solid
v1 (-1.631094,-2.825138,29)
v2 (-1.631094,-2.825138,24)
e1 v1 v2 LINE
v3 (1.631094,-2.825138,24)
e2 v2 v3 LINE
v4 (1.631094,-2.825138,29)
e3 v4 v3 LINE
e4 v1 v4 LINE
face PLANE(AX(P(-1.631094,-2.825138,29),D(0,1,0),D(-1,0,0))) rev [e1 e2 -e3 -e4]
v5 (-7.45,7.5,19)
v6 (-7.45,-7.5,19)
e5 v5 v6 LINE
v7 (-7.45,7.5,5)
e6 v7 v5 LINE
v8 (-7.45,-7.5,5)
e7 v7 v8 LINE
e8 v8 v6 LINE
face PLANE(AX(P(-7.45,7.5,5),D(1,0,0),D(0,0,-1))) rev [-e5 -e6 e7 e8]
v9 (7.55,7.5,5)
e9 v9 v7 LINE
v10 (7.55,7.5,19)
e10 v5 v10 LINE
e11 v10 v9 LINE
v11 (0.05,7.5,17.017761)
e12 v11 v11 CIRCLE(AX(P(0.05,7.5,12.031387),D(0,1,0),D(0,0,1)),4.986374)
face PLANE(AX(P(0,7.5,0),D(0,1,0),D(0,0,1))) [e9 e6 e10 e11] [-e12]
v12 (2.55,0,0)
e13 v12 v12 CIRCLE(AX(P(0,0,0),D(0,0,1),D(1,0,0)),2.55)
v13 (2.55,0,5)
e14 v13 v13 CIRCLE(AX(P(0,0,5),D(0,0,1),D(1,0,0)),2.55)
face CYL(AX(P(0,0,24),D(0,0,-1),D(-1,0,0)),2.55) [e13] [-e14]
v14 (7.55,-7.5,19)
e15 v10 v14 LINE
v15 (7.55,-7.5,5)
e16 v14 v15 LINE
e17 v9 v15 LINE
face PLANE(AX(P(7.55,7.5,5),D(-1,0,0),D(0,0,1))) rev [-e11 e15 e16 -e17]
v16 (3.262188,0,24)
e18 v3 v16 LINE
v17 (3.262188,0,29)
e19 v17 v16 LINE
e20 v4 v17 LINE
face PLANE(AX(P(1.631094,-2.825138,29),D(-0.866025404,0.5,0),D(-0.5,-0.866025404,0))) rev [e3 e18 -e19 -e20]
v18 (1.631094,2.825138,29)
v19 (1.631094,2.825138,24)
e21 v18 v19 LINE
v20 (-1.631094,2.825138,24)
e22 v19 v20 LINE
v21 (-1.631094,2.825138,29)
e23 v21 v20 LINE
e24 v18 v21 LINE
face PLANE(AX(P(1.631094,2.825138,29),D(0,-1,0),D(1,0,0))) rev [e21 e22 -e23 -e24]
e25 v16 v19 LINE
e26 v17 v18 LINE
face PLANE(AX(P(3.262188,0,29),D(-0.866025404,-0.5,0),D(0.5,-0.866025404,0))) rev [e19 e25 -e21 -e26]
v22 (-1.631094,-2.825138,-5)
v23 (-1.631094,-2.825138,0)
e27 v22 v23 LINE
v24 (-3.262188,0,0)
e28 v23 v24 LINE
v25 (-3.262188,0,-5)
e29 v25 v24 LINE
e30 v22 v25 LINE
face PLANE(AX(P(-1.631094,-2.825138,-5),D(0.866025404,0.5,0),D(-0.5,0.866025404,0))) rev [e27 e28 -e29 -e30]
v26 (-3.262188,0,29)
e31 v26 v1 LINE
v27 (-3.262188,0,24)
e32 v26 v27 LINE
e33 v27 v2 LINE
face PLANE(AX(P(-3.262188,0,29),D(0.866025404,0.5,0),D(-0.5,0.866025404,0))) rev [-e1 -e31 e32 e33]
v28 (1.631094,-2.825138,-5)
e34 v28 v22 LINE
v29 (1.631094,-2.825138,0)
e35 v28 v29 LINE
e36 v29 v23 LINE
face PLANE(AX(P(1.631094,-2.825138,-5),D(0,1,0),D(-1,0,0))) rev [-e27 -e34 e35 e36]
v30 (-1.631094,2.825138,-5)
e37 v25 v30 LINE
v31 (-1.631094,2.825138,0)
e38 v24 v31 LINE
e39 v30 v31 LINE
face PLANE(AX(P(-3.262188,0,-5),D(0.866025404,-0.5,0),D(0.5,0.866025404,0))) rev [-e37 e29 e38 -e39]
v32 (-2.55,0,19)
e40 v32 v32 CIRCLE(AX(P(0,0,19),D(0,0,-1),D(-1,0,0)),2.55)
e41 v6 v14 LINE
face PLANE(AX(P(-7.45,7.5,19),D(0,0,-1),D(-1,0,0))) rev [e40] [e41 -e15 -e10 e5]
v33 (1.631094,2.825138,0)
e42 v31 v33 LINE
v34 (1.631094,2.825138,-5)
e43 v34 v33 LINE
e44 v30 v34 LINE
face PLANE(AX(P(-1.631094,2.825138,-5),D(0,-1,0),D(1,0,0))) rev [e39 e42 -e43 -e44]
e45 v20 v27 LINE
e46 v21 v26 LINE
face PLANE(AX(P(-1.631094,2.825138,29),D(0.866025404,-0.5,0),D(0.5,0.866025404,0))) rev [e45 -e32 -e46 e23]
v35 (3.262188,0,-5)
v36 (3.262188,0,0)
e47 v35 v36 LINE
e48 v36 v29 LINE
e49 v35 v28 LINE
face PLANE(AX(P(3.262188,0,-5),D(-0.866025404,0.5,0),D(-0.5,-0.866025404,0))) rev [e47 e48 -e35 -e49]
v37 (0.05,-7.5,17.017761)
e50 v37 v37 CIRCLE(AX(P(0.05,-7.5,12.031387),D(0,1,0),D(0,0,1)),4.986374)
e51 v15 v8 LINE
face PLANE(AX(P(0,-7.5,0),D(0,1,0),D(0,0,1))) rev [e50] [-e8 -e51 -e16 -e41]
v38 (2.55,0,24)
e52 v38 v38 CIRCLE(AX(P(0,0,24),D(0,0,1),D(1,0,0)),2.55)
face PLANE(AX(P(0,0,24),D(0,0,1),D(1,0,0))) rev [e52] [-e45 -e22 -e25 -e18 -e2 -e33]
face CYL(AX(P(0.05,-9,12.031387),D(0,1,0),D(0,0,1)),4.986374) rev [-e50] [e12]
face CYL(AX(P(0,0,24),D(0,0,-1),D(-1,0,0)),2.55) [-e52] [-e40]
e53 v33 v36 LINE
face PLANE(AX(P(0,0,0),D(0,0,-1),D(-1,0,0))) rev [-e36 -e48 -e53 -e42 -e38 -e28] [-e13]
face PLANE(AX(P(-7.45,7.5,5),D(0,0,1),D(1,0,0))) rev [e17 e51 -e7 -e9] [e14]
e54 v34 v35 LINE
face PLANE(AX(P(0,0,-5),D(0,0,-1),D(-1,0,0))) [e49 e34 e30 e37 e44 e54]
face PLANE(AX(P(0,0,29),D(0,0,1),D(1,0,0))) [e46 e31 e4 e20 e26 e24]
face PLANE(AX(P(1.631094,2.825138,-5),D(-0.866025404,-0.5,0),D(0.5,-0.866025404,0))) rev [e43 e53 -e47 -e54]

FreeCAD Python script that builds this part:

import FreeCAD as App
import Part
import Sketcher
Q = App.Units.Quantity

doc = App.newDocument("Part")
body = doc.addObject("PartDesign::Body", "Body")

# Sketch on XY plane
sketch1 = body.newObject("Sketcher::SketchObject", "Sketch")
sketch1.AttachmentSupport = (doc.getObject("XY_Plane"), [""])
sketch1.MapMode = "FlatFace"
sketch1.addGeometry(Part.Circle(App.Vector(0, 0, 0), App.Vector(0, 0, 1), 2.55), False)
sketch1.addConstraint([
    Sketcher.Constraint("Coincident", 0, 3, -1, 1),
    Sketcher.Constraint("Diameter", 0, 5.1),
])
pad1 = body.newObject("PartDesign::Pad", "Pad")
pad1.Profile = sketch1
pad1.Length = 24

# Sketch on XY plane
sketch2 = body.newObject("Sketcher::SketchObject", "Sketch001")
sketch2.AttachmentSupport = (doc.getObject("XY_Plane"), [""])
sketch2.MapMode = "FlatFace"
sketch2.AttachmentOffset = App.Placement(App.Vector(0, 0, 24), App.Rotation())
sketch2.addGeometry([
    Part.LineSegment(App.Vector(3.262188, 0, 0), App.Vector(1.631094, 2.825138, 0)),  # 0
    Part.LineSegment(App.Vector(1.631094, 2.825138, 0), App.Vector(-1.631094, 2.825138, 0)),  # 1
    Part.LineSegment(App.Vector(-1.631094, 2.825138, 0), App.Vector(-3.262188, 0, 0)),  # 2
    Part.LineSegment(App.Vector(-3.262188, 0, 0), App.Vector(-1.631094, -2.825138, 0)),  # 3
    Part.LineSegment(App.Vector(-1.631094, -2.825138, 0), App.Vector(1.631094, -2.825138, 0)),  # 4
    Part.LineSegment(App.Vector(1.631094, -2.825138, 0), App.Vector(3.262188, 0, 0)),  # 5
], False)
sketch2.addConstraint([
    Sketcher.Constraint("Coincident", 0, 2, 1, 1),
    Sketcher.Constraint("Coincident", 1, 2, 2, 1),
    Sketcher.Constraint("Coincident", 2, 2, 3, 1),
    Sketcher.Constraint("Coincident", 3, 2, 4, 1),
    Sketcher.Constraint("Coincident", 4, 2, 5, 1),
    Sketcher.Constraint("Coincident", 5, 2, 0, 1),
    Sketcher.Constraint("Horizontal", 1),
    Sketcher.Constraint("Horizontal", 4),
    Sketcher.Constraint("Symmetric", 0, 2, 3, 2, -1, 1),
    Sketcher.Constraint("Symmetric", 2, 2, 5, 2, -1, 1),
    Sketcher.Constraint("PointOnObject", 2, 2, -1),
    Sketcher.Constraint("Parallel", 2, 5),
    Sketcher.Constraint("Vertical", 1, 2, 3, 2),
    Sketcher.Constraint("Angle", 0, Q("120 deg")),
    Sketcher.Constraint("DistanceX", 1, 2, 1, 1, 3.262188),
    Sketcher.Constraint("Distance", 0, 3.262188),
])
pad2 = body.newObject("PartDesign::Pad", "Pad001")
pad2.Profile = sketch2
pad2.Length = 5

# Sketch on XY plane
sketch3 = body.newObject("Sketcher::SketchObject", "Sketch002")
sketch3.AttachmentSupport = (doc.getObject("XY_Plane"), [""])
sketch3.MapMode = "FlatFace"
sketch3.addGeometry([
    Part.LineSegment(App.Vector(-3.262188, 0, 0), App.Vector(-1.631094, 2.825138, 0)),  # 0
    Part.LineSegment(App.Vector(-1.631094, 2.825138, 0), App.Vector(1.631094, 2.825138, 0)),  # 1
    Part.LineSegment(App.Vector(1.631094, 2.825138, 0), App.Vector(3.262188, 0, 0)),  # 2
    Part.LineSegment(App.Vector(3.262188, 0, 0), App.Vector(1.631094, -2.825138, 0)),  # 3
    Part.LineSegment(App.Vector(1.631094, -2.825138, 0), App.Vector(-1.631094, -2.825138, 0)),  # 4
    Part.LineSegment(App.Vector(-1.631094, -2.825138, 0), App.Vector(-3.262188, 0, 0)),  # 5
], False)
sketch3.addConstraint([
    Sketcher.Constraint("Coincident", 0, 2, 1, 1),
    Sketcher.Constraint("Coincident", 1, 2, 2, 1),
    Sketcher.Constraint("Coincident", 2, 2, 3, 1),
    Sketcher.Constraint("Coincident", 3, 2, 4, 1),
    Sketcher.Constraint("Coincident", 4, 2, 5, 1),
    Sketcher.Constraint("Coincident", 5, 2, 0, 1),
    Sketcher.Constraint("Horizontal", 1),
    Sketcher.Constraint("Horizontal", 4),
    Sketcher.Constraint("Symmetric", 0, 2, 3, 2, -1, 1),
    Sketcher.Constraint("Symmetric", 2, 2, 5, 2, -1, 1),
    Sketcher.Constraint("PointOnObject", 2, 2, -1),
    Sketcher.Constraint("Parallel", 2, 5),
    Sketcher.Constraint("Vertical", 1, 2, 3, 2),
    Sketcher.Constraint("Angle", 0, Q("60 deg")),
    Sketcher.Constraint("DistanceX", 1, 1, 1, 2, 3.262188),
    Sketcher.Constraint("Distance", 0, 3.262188),
])
pad3 = body.newObject("PartDesign::Pad", "Pad002")
pad3.Profile = sketch3
pad3.Length = 5
pad3.Reversed = True

# Sketch on XZ plane
sketch4 = body.newObject("Sketcher::SketchObject", "Sketch003")
sketch4.AttachmentSupport = (doc.getObject("XZ_Plane"), [""])
sketch4.MapMode = "FlatFace"
sketch4.addGeometry([
    Part.LineSegment(App.Vector(-7.45, 5, 0), App.Vector(-7.45, 19, 0)),
    Part.LineSegment(App.Vector(-7.45, 19, 0), App.Vector(7.55, 19, 0)),
    Part.LineSegment(App.Vector(7.55, 19, 0), App.Vector(7.55, 5, 0)),
    Part.LineSegment(App.Vector(7.55, 5, 0), App.Vector(-7.45, 5, 0)),
], False)
sketch4.addConstraint([
    Sketcher.Constraint("Coincident", 0, 2, 1, 1),
    Sketcher.Constraint("Coincident", 1, 2, 2, 1),
    Sketcher.Constraint("Coincident", 2, 2, 3, 1),
    Sketcher.Constraint("Coincident", 3, 2, 0, 1),
    Sketcher.Constraint("Vertical", 0),
    Sketcher.Constraint("Horizontal", 1),
    Sketcher.Constraint("Vertical", 2),
    Sketcher.Constraint("Horizontal", 3),
    Sketcher.Constraint("DistanceX", 1, 1, 1, 2, 15.0),
    Sketcher.Constraint("DistanceY", 0, 1, 0, 2, 14.0),
    Sketcher.Constraint("DistanceY", -1, 1, 0, 2, 19.0),
    Sketcher.Constraint("DistanceX", 0, 2, -1, 1, 7.45),
])
pad4 = body.newObject("PartDesign::Pad", "Pad003")
pad4.Profile = sketch4
pad4.Type = "TwoLengths"
pad4.Length = 7.5
pad4.Length2 = 7.5
pad4.Reversed = True

# Sketch on XZ plane
sketch5 = body.newObject("Sketcher::SketchObject", "Sketch004")
sketch5.AttachmentSupport = (doc.getObject("XZ_Plane"), [""])
sketch5.MapMode = "FlatFace"
sketch5.AttachmentOffset = App.Placement(App.Vector(0, 0, -7.5), App.Rotation())
sketch5.addGeometry(Part.Circle(App.Vector(0.05, 12.031387, 0), App.Vector(0, 0, 1), 4.986374), False)
sketch5.addConstraint([
    Sketcher.Constraint("DistanceX", -1, 1, 0, 3, 0.05),
    Sketcher.Constraint("Diameter", 0, 9.972747),
    Sketcher.Constraint("DistanceY", -1, 1, 0, 3, 12.031387),
])
pocket1 = body.newObject("PartDesign::Pocket", "Pocket")
pocket1.Profile = sketch5
pocket1.Length = 16.5
pocket1.Reversed = True

doc.recompute()
